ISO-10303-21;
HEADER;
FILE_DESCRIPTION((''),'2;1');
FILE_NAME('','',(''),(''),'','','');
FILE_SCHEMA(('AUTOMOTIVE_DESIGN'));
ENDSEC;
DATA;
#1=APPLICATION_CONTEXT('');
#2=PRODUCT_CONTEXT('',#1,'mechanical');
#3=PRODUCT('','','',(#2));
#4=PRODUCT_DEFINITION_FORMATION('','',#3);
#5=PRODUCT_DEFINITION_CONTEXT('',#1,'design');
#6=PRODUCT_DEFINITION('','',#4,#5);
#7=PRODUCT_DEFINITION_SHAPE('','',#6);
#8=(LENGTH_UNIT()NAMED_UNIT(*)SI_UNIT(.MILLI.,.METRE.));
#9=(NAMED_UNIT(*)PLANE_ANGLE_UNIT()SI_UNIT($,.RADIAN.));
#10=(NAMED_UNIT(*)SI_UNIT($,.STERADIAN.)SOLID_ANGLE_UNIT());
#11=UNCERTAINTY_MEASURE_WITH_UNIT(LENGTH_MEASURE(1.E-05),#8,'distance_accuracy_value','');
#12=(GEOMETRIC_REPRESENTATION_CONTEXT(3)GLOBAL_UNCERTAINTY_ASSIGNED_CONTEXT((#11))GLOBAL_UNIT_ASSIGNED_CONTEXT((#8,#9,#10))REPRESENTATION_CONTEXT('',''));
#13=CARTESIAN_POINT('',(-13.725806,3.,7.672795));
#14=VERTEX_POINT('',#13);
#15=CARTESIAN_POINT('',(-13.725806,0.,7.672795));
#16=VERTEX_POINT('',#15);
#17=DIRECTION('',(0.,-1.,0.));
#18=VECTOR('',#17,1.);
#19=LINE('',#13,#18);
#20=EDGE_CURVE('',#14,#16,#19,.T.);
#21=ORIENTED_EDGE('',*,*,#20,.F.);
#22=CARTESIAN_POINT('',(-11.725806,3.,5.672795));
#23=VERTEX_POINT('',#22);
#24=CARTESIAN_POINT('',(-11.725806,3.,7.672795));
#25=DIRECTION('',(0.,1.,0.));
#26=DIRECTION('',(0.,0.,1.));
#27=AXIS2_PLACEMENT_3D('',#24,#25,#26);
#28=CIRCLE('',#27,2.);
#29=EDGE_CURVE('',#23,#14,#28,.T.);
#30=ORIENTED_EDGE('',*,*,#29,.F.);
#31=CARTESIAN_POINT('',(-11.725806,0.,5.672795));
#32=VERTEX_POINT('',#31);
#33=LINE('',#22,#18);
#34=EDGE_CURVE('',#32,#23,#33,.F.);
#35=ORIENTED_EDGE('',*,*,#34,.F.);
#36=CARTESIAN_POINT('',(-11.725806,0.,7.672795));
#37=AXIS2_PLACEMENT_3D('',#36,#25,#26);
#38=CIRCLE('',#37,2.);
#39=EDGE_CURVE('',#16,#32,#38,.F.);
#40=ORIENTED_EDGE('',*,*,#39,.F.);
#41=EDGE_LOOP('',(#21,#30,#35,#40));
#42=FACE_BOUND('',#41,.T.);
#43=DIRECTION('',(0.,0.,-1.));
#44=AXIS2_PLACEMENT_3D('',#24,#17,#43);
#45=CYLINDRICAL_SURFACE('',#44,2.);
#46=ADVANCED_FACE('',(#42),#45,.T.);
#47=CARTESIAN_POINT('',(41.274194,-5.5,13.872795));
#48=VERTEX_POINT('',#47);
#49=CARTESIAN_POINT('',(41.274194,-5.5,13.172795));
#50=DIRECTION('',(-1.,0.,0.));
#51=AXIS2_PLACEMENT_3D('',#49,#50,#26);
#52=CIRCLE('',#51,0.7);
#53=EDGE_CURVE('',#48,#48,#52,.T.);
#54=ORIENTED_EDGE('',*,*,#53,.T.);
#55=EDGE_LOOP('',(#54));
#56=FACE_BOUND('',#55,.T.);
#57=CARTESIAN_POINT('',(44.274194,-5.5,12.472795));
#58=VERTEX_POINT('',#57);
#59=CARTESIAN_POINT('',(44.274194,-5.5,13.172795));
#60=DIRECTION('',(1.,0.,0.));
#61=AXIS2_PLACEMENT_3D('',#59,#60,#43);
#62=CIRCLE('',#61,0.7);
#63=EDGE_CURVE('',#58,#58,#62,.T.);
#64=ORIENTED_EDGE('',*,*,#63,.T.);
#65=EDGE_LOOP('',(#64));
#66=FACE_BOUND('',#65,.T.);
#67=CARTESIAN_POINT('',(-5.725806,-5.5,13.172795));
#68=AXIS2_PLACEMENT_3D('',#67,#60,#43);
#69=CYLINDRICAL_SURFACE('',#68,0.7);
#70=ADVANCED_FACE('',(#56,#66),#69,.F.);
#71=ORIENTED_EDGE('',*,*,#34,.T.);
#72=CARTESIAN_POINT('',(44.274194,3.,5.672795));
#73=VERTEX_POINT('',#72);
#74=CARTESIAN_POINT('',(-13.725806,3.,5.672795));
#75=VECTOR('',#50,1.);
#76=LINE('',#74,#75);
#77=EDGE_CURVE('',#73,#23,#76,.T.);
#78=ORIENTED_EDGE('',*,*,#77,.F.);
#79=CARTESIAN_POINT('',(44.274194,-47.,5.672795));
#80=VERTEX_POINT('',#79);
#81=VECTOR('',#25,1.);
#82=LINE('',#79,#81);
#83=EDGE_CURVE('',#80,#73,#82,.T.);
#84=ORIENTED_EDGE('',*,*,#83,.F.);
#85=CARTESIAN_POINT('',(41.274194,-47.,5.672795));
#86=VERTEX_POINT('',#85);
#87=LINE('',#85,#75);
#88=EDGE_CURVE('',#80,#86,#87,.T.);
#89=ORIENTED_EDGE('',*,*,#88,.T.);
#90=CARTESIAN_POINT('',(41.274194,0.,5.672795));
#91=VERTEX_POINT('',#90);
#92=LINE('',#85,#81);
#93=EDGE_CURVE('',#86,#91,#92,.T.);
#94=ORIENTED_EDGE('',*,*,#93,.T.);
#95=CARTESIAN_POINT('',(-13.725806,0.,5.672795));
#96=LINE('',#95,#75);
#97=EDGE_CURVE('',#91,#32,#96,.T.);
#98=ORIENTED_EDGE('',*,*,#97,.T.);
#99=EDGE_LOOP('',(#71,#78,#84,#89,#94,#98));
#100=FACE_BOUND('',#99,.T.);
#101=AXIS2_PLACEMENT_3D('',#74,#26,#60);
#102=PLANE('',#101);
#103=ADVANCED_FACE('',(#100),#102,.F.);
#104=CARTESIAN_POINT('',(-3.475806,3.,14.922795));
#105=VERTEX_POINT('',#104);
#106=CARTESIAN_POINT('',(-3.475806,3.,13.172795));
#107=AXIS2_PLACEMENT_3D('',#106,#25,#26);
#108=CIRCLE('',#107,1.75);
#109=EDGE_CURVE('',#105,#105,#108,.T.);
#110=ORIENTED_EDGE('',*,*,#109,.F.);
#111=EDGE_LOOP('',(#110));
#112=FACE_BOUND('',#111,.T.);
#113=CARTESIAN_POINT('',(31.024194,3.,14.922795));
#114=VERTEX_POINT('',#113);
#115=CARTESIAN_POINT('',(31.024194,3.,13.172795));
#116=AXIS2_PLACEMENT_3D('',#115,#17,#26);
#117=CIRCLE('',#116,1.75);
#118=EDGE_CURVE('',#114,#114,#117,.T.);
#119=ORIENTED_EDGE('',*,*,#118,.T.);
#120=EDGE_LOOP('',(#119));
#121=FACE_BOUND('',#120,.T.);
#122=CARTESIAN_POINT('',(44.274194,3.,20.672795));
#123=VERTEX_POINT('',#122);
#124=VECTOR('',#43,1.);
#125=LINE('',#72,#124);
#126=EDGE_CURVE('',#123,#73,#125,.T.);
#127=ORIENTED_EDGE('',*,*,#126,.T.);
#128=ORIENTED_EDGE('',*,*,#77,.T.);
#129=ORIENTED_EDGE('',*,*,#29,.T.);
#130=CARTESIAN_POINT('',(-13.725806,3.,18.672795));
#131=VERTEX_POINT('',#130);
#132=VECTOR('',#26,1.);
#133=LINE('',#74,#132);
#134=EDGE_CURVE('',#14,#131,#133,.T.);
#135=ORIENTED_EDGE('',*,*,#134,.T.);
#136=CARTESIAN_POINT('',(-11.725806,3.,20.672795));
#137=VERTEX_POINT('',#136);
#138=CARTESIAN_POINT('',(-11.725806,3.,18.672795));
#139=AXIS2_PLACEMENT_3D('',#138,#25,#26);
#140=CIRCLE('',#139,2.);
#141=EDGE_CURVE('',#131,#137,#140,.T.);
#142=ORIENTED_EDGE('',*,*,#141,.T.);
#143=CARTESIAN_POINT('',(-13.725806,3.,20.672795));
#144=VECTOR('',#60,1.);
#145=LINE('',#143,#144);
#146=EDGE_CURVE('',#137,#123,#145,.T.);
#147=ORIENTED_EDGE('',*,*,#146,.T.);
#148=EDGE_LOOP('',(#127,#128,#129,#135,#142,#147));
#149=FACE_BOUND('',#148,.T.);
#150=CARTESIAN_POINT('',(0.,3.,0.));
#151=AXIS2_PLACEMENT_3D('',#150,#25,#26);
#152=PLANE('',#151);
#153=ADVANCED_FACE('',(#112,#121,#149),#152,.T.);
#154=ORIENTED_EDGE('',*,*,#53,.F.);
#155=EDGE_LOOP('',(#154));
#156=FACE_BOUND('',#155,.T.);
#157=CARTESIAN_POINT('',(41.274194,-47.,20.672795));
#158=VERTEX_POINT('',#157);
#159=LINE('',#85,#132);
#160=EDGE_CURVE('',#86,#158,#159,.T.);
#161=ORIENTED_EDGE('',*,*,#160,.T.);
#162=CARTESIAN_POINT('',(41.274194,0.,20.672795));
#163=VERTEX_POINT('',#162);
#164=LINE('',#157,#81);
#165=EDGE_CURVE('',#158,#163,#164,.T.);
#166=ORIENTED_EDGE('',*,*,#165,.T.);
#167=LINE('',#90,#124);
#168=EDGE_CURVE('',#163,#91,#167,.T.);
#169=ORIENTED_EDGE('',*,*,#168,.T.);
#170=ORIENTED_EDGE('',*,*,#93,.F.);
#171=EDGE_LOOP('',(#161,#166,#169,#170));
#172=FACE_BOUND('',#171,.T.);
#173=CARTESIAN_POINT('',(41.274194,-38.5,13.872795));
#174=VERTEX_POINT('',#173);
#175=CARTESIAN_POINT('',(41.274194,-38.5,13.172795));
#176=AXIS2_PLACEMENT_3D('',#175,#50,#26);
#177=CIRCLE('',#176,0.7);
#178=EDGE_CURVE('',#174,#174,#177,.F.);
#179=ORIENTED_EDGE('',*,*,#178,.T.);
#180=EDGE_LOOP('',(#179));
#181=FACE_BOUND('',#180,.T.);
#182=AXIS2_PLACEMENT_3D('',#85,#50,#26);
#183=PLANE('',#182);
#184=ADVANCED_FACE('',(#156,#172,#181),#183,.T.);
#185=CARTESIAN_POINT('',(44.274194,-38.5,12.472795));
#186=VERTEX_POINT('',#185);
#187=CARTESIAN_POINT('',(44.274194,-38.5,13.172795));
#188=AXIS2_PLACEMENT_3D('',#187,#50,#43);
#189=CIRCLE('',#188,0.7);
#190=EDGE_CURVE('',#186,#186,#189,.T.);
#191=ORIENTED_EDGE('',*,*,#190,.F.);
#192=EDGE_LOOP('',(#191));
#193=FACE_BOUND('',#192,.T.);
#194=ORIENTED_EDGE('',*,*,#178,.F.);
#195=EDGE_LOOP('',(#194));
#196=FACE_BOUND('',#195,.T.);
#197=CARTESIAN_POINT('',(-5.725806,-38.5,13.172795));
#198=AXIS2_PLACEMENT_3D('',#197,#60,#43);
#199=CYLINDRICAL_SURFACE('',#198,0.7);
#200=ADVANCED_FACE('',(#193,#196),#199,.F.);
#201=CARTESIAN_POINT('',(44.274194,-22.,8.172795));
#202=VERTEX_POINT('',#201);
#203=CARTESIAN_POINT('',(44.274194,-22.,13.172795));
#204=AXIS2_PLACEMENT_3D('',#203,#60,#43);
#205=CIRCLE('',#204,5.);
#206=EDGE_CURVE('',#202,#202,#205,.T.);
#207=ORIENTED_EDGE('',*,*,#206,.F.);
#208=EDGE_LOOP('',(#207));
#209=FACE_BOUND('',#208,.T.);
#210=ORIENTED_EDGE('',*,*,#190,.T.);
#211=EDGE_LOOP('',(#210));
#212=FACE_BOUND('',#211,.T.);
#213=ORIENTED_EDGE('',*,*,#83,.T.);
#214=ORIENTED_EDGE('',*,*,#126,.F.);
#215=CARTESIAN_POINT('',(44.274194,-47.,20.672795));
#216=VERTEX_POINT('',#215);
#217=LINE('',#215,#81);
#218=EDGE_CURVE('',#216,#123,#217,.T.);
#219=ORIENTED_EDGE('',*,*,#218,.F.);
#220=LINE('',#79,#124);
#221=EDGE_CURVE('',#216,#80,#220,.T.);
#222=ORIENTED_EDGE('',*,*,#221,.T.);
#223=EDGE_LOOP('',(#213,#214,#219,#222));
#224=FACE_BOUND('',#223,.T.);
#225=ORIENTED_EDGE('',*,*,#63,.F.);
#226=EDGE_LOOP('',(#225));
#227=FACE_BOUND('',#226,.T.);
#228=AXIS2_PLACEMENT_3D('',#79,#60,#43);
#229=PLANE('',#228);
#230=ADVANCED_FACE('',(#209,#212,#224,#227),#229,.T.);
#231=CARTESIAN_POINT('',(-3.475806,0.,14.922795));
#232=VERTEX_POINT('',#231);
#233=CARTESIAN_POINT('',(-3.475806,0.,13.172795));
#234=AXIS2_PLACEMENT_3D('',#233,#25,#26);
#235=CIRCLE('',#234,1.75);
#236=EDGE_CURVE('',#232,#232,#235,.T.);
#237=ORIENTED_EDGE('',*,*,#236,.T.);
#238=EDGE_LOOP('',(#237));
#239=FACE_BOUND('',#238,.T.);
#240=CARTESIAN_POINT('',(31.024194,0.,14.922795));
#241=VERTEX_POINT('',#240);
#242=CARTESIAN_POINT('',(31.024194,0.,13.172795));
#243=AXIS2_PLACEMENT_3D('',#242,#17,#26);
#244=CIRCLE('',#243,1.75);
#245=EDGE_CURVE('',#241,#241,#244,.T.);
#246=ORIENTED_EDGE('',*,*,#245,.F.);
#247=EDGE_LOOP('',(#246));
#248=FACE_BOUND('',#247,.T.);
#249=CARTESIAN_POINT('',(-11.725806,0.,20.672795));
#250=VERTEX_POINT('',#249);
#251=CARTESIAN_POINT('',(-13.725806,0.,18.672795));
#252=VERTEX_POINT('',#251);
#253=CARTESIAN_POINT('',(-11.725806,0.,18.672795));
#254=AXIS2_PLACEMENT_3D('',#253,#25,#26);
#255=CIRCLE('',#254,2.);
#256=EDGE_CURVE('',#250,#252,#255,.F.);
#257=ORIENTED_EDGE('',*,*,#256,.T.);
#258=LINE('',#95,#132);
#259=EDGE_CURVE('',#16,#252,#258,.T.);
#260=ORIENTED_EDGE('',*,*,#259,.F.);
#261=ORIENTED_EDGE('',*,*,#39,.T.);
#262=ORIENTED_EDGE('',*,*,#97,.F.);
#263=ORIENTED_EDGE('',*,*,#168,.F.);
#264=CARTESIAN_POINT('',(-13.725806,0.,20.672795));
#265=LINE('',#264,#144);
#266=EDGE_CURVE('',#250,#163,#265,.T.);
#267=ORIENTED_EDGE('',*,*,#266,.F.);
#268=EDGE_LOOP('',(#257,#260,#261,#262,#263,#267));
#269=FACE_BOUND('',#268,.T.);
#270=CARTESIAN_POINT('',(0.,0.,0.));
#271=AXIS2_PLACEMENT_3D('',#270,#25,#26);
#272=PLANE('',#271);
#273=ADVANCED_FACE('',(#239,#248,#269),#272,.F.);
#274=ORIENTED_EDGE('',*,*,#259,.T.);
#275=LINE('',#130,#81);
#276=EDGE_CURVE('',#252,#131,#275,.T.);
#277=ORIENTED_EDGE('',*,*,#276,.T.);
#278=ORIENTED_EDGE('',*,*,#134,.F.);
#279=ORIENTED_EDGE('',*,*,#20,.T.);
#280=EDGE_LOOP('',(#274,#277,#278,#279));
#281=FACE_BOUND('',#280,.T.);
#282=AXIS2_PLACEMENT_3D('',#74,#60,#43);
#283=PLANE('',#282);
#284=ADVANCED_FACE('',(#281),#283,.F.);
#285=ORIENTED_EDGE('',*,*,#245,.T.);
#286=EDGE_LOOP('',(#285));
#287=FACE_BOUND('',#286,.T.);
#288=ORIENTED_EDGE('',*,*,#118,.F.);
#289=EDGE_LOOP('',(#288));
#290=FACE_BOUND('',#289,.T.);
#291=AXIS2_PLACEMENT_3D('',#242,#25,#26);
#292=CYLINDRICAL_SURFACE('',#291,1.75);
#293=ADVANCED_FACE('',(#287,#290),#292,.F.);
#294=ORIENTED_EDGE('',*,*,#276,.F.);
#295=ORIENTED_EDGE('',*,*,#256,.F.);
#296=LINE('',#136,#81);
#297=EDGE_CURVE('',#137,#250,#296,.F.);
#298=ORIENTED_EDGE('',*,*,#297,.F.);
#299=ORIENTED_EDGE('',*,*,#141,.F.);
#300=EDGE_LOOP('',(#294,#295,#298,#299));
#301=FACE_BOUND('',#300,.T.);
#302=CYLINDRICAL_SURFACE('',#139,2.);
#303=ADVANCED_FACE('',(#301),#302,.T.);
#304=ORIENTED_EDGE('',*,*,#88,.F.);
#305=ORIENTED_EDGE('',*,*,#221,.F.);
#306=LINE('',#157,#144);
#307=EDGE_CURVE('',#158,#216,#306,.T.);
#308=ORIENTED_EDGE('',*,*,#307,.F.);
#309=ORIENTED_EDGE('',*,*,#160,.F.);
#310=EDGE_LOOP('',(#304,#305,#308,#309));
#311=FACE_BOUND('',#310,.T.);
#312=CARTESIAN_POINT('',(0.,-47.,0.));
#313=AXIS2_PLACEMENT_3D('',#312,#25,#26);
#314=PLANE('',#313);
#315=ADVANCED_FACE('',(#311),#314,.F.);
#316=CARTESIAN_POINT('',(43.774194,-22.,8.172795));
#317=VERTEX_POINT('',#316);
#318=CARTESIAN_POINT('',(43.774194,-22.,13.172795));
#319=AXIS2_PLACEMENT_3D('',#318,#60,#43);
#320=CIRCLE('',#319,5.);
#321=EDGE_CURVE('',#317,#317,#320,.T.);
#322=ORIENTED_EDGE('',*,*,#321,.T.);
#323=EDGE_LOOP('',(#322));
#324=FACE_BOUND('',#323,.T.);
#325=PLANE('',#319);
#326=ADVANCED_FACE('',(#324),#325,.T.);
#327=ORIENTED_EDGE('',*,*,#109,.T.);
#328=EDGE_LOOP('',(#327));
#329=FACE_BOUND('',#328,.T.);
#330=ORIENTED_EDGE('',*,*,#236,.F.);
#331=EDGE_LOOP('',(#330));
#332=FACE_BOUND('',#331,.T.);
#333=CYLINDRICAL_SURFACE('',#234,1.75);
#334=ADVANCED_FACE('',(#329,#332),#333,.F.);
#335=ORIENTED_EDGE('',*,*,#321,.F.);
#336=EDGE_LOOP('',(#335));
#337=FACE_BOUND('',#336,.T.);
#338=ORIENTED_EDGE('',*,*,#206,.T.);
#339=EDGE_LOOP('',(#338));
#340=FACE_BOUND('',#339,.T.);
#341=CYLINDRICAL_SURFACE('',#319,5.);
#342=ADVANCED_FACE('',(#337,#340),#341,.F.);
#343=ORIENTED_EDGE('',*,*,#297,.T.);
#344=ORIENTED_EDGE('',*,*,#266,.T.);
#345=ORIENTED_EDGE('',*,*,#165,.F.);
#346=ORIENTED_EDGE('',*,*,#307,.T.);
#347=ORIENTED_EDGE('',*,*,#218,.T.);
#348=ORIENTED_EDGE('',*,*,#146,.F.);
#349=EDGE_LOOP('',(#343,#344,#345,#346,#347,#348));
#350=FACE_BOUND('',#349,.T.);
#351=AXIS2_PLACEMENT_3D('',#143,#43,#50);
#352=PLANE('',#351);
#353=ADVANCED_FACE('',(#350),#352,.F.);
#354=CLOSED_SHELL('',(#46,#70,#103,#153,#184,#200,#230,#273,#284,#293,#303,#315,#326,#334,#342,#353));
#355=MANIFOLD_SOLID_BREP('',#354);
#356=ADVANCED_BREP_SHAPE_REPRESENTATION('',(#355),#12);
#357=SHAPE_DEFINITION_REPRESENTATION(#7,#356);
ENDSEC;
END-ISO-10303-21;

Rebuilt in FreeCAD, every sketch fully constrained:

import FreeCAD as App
import Part
import Sketcher

V = App.Vector


def edges_at(feature, points):
    """Names of the edges that pass closest to the given points."""
    edges = feature.Shape.Edges
    near = lambda p: min(range(len(edges)), key=lambda i: edges[i].distToShape(Part.Vertex(*p))[0])
    return sorted({f"Edge{near(p) + 1}" for p in points})

doc = App.newDocument("Part")
body = doc.addObject("PartDesign::Body", "Body")

sketch1 = body.newObject("Sketcher::SketchObject", "Sketch")
sketch1.AttachmentSupport = (doc.getObject("XZ_Plane"), [""])
sketch1.MapMode = "FlatFace"
sketch1.addGeometry([
    Part.LineSegment(V(-13.725806, 5.672795, 0), V(-13.725806, 20.672795, 0)),
    Part.LineSegment(V(-13.725806, 20.672795, 0), V(41.274194, 20.672795, 0)),
    Part.LineSegment(V(41.274194, 20.672795, 0), V(41.274194, 5.672795, 0)),
    Part.LineSegment(V(41.274194, 5.672795, 0), V(-13.725806, 5.672795, 0)),
], False)
sketch1.addConstraint([
    Sketcher.Constraint("Coincident", 0, 2, 1, 1),
    Sketcher.Constraint("Coincident", 1, 2, 2, 1),
    Sketcher.Constraint("Coincident", 2, 2, 3, 1),
    Sketcher.Constraint("Coincident", 3, 2, 0, 1),
    Sketcher.Constraint("Vertical", 0),
    Sketcher.Constraint("Horizontal", 1),
    Sketcher.Constraint("Vertical", 2),
    Sketcher.Constraint("Horizontal", 3),
    Sketcher.Constraint("DistanceX", 1, 1, 1, 2, 55.0),
    Sketcher.Constraint("DistanceY", 0, 1, 0, 2, 15.0),
    Sketcher.Constraint("DistanceX", 0, 2, -1, 1, 13.725806),
    Sketcher.Constraint("DistanceY", -1, 1, 0, 2, 20.672795),
])
pad1 = body.newObject("PartDesign::Pad", "Pad")
pad1.Profile = sketch1
pad1.Length = 3
pad1.Reversed = True
doc.recompute()

fillet = body.newObject("PartDesign::Fillet", "Fillet")
fillet.Base = (pad1, edges_at(pad1, [(-13.726, 1.5, 5.673)]))
fillet.Radius = 2
doc.recompute()

fillet2 = body.newObject("PartDesign::Fillet", "Fillet001")
fillet2.Base = (fillet, edges_at(fillet, [(-13.726, 1.5, 20.673)]))
fillet2.Radius = 2

sketch2 = body.newObject("Sketcher::SketchObject", "Sketch001")
sketch2.AttachmentSupport = (doc.getObject("XZ_Plane"), [""])
sketch2.MapMode = "FlatFace"
sketch2.AttachmentOffset = App.Placement(V(0, 0, -3), App.Rotation())
sketch2.addGeometry(Part.Circle(V(-3.475806, 13.172795, 0), V(0, 0, 1), 1.75), False)
sketch2.addConstraint([
    Sketcher.Constraint("Diameter", 0, 3.5),
    Sketcher.Constraint("DistanceX", 0, 3, -1, 1, 3.475806),
    Sketcher.Constraint("DistanceY", -1, 1, 0, 3, 13.172795),
])
pocket1 = body.newObject("PartDesign::Pocket", "Pocket")
pocket1.Profile = sketch2
pocket1.Length = 3
pocket1.Reversed = True
doc.recompute()

datumplane = body.newObject("PartDesign::Plane", "DatumPlane")
datumplane.AttachmentSupport = (doc.getObject("YZ_Plane"), [""])
datumplane.MapMode = "FlatFace"
datumplane.AttachmentOffset = App.Placement(V(0, 0, 13.774194), App.Rotation())
mirrored = body.newObject("PartDesign::Mirrored", "Mirrored")
mirrored.Originals = [pocket1]
mirrored.MirrorPlane = (datumplane, [""])
body.Tip = mirrored

sketch3 = body.newObject("Sketcher::SketchObject", "Sketch002")
sketch3.AttachmentSupport = (doc.getObject("XZ_Plane"), [""])
sketch3.MapMode = "FlatFace"
sketch3.AttachmentOffset = App.Placement(V(0, 0, -3), App.Rotation())
sketch3.addGeometry([
    Part.LineSegment(V(41.274194, 5.672795, 0), V(41.274194, 20.672795, 0)),
    Part.LineSegment(V(41.274194, 20.672795, 0), V(44.274194, 20.672795, 0)),
    Part.LineSegment(V(44.274194, 20.672795, 0), V(44.274194, 5.672795, 0)),
    Part.LineSegment(V(44.274194, 5.672795, 0), V(41.274194, 5.672795, 0)),
], False)
sketch3.addConstraint([
    Sketcher.Constraint("Coincident", 0, 2, 1, 1),
    Sketcher.Constraint("Coincident", 1, 2, 2, 1),
    Sketcher.Constraint("Coincident", 2, 2, 3, 1),
    Sketcher.Constraint("Coincident", 3, 2, 0, 1),
    Sketcher.Constraint("Vertical", 0),
    Sketcher.Constraint("Horizontal", 1),
    Sketcher.Constraint("Vertical", 2),
    Sketcher.Constraint("Horizontal", 3),
    Sketcher.Constraint("DistanceX", 1, 1, 1, 2, 3.0),
    Sketcher.Constraint("DistanceY", 0, 1, 0, 2, 15.0),
    Sketcher.Constraint("DistanceX", -1, 1, 0, 2, 41.274194),
    Sketcher.Constraint("DistanceY", -1, 1, 0, 2, 20.672795),
])
pad2 = body.newObject("PartDesign::Pad", "Pad001")
pad2.Profile = sketch3
pad2.Length = 50

sketch4 = body.newObject("Sketcher::SketchObject", "Sketch003")
sketch4.AttachmentSupport = (doc.getObject("YZ_Plane"), [""])
sketch4.MapMode = "FlatFace"
sketch4.AttachmentOffset = App.Placement(V(0, 0, 44.274194), App.Rotation())
sketch4.addGeometry(Part.Circle(V(-5.5, 13.172795, 0), V(0, 0, 1), 0.7), False)
sketch4.addConstraint([
    Sketcher.Constraint("Diameter", 0, 1.4),
    Sketcher.Constraint("DistanceX", 0, 3, -1, 1, 5.5),
    Sketcher.Constraint("DistanceY", -1, 1, 0, 3, 13.172795),
])
pocket2 = body.newObject("PartDesign::Pocket", "Pocket001")
pocket2.Profile = sketch4
pocket2.Length = 50
doc.recompute()

datumplane2 = body.newObject("PartDesign::Plane", "DatumPlane001")
datumplane2.AttachmentSupport = (doc.getObject("XZ_Plane"), [""])
datumplane2.MapMode = "FlatFace"
datumplane2.AttachmentOffset = App.Placement(V(0, 0, 22), App.Rotation())
mirrored2 = body.newObject("PartDesign::Mirrored", "Mirrored001")
mirrored2.Originals = [pocket2]
mirrored2.MirrorPlane = (datumplane2, [""])
body.Tip = mirrored2

sketch5 = body.newObject("Sketcher::SketchObject", "Sketch004")
sketch5.AttachmentSupport = (doc.getObject("YZ_Plane"), [""])
sketch5.MapMode = "FlatFace"
sketch5.AttachmentOffset = App.Placement(V(0, 0, 44.274194), App.Rotation())
sketch5.addGeometry(Part.Circle(V(-22, 13.172795, 0), V(0, 0, 1), 5), False)
sketch5.addConstraint([
    Sketcher.Constraint("Diameter", 0, 10.0),
    Sketcher.Constraint("DistanceX", 0, 3, -1, 1, 22.0),
    Sketcher.Constraint("DistanceY", -1, 1, 0, 3, 13.172795),
])
pocket3 = body.newObject("PartDesign::Pocket", "Pocket002")
pocket3.Profile = sketch5
pocket3.Length = 0.5

doc.recompute()
